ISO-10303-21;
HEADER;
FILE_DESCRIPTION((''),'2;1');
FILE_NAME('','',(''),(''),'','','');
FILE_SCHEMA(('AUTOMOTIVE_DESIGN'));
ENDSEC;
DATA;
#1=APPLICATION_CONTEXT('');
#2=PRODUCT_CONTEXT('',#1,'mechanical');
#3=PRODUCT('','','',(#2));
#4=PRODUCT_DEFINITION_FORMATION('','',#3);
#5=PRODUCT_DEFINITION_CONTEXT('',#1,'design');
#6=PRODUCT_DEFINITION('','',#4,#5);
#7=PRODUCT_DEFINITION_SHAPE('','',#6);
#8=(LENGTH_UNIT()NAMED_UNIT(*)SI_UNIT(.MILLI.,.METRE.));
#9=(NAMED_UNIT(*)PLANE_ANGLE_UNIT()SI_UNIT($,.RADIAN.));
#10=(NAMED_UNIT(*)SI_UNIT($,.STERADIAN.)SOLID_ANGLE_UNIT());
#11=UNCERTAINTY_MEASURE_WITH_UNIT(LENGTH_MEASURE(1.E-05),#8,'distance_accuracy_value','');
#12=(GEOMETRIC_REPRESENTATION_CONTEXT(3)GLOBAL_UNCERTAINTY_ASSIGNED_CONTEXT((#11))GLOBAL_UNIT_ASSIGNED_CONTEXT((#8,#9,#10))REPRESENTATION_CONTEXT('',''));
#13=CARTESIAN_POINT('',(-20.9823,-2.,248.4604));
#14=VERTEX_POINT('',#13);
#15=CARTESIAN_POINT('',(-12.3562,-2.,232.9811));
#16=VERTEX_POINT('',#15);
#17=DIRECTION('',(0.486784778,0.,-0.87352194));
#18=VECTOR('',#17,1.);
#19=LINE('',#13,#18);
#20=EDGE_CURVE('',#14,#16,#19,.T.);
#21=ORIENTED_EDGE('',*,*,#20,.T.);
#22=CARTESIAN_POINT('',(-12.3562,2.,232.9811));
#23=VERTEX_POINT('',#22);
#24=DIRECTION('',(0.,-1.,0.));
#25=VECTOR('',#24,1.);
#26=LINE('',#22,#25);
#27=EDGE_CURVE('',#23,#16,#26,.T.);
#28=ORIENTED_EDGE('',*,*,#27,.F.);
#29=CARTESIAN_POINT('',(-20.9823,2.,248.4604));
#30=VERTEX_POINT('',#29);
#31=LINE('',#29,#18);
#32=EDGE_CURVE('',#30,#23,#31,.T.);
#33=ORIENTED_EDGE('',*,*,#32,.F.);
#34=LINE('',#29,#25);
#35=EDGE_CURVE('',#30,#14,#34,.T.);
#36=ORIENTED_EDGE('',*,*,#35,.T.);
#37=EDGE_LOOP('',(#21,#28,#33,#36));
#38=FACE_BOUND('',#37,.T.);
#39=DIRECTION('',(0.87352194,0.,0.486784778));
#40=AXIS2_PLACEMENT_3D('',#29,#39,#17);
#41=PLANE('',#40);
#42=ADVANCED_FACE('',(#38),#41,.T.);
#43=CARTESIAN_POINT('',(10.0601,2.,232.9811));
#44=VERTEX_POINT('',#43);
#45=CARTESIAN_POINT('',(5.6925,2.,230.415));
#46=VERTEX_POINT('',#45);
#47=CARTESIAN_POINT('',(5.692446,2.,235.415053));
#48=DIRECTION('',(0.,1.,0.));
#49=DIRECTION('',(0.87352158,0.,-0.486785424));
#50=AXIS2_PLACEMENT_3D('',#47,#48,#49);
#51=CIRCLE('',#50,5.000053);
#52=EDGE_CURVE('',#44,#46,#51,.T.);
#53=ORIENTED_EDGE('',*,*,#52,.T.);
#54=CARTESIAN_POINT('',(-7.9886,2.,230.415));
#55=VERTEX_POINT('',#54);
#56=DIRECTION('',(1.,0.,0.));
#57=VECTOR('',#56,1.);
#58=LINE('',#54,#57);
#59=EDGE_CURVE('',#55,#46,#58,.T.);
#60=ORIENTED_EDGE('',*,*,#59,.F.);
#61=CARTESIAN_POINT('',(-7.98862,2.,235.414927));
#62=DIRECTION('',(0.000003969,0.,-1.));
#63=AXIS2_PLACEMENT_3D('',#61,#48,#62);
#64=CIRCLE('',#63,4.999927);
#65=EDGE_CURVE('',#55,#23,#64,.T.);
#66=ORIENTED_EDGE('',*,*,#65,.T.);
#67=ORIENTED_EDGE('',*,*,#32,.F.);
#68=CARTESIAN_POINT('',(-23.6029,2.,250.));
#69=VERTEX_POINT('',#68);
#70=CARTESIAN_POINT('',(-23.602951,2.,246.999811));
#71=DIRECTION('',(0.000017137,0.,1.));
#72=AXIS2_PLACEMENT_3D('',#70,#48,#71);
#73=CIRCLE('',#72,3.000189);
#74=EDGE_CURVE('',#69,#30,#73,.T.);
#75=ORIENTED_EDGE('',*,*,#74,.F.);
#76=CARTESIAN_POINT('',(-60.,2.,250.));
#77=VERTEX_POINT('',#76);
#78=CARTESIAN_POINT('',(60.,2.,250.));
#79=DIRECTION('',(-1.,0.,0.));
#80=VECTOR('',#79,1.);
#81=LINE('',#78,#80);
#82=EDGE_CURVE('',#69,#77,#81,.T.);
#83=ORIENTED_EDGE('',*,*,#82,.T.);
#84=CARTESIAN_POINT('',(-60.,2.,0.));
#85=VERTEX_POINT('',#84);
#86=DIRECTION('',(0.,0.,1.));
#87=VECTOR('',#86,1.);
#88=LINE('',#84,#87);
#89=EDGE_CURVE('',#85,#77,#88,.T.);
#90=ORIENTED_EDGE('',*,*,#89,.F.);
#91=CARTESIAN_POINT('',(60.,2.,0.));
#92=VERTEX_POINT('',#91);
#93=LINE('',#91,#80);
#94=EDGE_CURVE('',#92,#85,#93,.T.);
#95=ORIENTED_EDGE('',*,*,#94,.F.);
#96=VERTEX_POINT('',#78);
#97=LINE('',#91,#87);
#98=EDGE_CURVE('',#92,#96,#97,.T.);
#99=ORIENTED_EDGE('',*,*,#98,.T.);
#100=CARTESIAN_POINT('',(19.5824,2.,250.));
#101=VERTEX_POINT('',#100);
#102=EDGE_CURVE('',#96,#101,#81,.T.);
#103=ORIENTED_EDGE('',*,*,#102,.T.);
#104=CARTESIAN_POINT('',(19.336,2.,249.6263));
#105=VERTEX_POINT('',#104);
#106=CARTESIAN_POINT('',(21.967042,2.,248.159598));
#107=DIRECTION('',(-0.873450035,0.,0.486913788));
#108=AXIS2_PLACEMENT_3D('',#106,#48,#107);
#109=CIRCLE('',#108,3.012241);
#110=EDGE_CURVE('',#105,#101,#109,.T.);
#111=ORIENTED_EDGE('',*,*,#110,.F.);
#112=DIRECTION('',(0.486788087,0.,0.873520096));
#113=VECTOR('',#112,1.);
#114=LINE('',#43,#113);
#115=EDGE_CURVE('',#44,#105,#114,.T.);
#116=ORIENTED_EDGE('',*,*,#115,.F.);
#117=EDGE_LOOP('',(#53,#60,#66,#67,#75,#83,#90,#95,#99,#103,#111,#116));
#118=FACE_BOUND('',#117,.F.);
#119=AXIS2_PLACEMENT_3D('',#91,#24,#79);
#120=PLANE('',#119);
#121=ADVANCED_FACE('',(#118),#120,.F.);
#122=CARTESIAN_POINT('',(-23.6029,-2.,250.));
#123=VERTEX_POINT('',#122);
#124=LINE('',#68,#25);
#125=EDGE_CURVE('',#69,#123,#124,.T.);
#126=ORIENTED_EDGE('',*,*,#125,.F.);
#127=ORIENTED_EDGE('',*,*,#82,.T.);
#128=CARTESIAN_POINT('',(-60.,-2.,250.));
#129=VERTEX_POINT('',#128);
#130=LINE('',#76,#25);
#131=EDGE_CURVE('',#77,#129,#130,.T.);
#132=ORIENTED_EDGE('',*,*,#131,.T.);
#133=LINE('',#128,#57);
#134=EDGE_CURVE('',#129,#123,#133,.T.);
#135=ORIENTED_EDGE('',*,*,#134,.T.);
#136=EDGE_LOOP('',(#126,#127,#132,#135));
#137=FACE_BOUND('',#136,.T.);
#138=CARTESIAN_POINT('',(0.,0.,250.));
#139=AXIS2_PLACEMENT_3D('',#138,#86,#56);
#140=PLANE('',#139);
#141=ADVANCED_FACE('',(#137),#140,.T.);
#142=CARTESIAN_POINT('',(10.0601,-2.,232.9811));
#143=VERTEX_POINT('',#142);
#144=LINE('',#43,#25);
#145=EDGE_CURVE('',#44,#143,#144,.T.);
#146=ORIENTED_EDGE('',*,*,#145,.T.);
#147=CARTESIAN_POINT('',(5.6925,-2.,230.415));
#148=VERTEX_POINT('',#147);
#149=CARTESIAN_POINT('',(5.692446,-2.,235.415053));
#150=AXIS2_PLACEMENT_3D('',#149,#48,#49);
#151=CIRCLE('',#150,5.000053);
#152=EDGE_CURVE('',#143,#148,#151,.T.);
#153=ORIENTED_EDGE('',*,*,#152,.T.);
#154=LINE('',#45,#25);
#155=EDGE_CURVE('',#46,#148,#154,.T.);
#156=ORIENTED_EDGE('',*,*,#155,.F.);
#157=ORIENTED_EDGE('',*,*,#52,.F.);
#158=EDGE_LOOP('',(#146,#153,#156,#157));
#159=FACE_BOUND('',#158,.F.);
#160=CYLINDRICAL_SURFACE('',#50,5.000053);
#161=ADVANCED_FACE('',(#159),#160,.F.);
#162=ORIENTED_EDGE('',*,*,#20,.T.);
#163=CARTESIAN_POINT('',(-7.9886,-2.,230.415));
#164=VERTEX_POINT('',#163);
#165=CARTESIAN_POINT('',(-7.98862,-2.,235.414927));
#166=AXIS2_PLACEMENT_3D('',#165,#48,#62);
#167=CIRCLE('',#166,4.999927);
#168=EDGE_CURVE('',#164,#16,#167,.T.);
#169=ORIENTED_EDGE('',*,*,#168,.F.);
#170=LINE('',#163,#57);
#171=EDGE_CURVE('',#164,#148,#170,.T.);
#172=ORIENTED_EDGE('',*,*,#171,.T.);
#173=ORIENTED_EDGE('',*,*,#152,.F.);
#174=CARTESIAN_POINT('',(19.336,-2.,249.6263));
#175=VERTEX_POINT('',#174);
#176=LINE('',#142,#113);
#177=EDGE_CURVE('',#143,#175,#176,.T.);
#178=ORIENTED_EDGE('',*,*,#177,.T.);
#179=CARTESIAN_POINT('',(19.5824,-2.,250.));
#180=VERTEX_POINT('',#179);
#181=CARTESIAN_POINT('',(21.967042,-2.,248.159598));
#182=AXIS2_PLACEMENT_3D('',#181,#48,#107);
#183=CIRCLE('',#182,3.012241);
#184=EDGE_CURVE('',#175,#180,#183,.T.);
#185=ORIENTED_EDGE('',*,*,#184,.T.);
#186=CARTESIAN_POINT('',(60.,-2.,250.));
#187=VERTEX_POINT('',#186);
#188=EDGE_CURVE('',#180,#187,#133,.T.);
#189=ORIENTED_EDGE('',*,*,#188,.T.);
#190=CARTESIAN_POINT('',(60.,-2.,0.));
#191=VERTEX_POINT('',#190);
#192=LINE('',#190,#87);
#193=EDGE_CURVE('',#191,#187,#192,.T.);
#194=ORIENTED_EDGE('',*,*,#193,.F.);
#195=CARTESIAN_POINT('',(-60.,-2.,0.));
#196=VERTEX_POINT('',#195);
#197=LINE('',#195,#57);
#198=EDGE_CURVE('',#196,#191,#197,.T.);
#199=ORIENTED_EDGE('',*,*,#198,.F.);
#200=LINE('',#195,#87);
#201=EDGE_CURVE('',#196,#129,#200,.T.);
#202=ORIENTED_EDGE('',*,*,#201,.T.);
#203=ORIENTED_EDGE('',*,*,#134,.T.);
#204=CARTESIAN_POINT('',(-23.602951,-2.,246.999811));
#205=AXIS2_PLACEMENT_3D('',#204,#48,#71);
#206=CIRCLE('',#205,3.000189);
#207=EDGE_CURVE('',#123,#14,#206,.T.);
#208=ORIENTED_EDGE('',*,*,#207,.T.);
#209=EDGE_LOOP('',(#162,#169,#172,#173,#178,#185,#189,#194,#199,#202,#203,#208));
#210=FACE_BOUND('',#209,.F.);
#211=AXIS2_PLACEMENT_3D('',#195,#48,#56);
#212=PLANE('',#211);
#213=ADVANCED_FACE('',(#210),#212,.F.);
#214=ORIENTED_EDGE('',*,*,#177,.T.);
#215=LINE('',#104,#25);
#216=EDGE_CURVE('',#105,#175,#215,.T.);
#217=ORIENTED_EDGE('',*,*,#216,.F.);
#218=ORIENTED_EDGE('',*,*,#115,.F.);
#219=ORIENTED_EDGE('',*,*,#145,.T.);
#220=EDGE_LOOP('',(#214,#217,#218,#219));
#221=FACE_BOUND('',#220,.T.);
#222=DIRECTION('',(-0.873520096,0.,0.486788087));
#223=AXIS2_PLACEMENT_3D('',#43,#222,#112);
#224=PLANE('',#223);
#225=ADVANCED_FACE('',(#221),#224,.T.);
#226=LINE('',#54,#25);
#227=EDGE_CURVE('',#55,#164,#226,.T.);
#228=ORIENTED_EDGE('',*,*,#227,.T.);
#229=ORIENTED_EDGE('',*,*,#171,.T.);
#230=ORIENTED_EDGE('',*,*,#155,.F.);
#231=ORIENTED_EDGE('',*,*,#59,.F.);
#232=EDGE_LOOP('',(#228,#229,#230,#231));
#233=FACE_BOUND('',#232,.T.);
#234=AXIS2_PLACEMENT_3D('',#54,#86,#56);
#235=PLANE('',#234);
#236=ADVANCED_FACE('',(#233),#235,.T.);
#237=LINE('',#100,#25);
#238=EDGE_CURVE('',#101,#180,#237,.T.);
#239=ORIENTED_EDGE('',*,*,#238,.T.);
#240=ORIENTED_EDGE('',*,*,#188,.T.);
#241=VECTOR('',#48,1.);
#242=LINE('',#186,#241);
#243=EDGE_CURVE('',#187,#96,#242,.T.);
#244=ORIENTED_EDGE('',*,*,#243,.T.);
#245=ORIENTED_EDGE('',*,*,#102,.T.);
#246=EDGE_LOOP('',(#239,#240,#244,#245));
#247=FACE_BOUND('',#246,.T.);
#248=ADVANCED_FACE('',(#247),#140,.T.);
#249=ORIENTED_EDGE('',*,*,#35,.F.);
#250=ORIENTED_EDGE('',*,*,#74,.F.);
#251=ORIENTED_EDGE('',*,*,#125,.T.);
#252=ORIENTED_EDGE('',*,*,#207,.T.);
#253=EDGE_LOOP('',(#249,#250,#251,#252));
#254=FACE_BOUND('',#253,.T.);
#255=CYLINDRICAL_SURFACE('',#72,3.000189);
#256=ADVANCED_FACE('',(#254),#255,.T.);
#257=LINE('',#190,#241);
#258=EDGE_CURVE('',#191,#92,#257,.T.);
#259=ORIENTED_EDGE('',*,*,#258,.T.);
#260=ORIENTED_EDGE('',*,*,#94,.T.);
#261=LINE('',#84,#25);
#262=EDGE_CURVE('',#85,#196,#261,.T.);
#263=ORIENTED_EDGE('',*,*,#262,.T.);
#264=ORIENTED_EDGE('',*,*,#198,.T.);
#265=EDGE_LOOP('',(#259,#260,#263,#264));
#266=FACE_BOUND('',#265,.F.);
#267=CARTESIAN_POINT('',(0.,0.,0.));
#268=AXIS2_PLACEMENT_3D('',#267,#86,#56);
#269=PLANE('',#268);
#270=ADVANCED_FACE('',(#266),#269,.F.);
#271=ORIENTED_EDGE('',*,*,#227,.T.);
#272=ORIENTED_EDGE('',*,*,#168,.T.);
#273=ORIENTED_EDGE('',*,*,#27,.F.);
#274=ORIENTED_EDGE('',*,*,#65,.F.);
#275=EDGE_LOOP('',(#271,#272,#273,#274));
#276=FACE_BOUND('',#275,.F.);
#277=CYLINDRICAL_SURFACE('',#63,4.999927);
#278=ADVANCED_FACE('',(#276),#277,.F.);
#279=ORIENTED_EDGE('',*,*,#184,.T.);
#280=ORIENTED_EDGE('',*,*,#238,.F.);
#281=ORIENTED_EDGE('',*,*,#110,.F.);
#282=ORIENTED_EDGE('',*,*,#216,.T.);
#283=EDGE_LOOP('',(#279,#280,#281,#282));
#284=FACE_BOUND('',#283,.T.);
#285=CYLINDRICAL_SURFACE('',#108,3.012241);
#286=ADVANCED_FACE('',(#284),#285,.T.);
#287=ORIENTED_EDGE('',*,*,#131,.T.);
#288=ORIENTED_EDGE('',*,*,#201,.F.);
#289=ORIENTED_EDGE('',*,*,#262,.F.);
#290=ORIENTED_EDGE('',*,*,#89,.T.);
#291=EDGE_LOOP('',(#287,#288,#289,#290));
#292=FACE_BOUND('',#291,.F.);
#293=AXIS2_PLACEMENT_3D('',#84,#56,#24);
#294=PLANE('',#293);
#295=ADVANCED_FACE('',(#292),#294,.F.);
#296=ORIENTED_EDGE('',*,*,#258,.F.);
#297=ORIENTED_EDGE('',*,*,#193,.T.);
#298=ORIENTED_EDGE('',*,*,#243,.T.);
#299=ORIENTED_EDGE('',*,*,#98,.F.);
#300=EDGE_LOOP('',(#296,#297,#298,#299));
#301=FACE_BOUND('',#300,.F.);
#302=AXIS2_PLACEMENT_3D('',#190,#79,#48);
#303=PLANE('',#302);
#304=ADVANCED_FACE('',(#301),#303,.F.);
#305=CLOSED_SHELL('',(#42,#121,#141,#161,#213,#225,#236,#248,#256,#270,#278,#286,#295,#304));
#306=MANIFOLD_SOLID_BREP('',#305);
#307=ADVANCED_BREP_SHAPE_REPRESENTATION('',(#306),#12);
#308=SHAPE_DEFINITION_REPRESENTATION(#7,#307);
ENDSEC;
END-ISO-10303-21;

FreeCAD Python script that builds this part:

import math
import FreeCAD as App
import Part
import Sketcher
from FreeCAD import Vector
Q = App.Units.Quantity


def add_polygon(sketch, points):
    """Adds a closed chain of lines whose ends are joined by coincident constraints."""
    first, n = sketch.GeometryCount, len(points)
    for a, b in zip(points, points[1:] + points[:1]):
        sketch.addGeometry(Part.LineSegment(App.Vector(*a, 0), App.Vector(*b, 0)), False)
    for i in range(n):
        sketch.addConstraint(Sketcher.Constraint("Coincident", first + i, 2, first + (i + 1) % n, 1))

doc = App.newDocument("Part")
params = doc.addObject("Spreadsheet::Sheet", "Params")
for row, (alias, value) in enumerate([
    ("sketch1_width", "120 mm"),
    ("sketch1_height", "4 mm"),
    ("pad1_length", "250 mm"),
    ("sketch2_radius", "3 mm"),
    ("sketch2_radius2", "5 mm"),
    ("pocket1_length", "4 mm"),
], start=1):
    params.set(f"A{row}", alias)
    params.set(f"B{row}", "=" + value)
    params.setAlias(f"B{row}", alias)

body = doc.addObject("PartDesign::Body", "Body")

# Sketch on XY plane
sketch1 = body.newObject("Sketcher::SketchObject", "Sketch")
sketch1.AttachmentSupport = (doc.getObject("XY_Plane"), [""])
sketch1.MapMode = "FlatFace"
add_polygon(sketch1, [(60, -2), (60, 2), (-60, 2), (-60, -2)])  # lines 0-3
sketch1.addConstraint([
    Sketcher.Constraint("Vertical", 0),
    Sketcher.Constraint("Horizontal", 1),
    Sketcher.Constraint("Vertical", 2),
    Sketcher.Constraint("Horizontal", 3),
    Sketcher.Constraint("Symmetric", 0, 2, 2, 2, -1, 1),
    Sketcher.Constraint("DistanceX", 1, 2, 1, 1, 120.0),
    Sketcher.Constraint("DistanceY", 0, 1, 0, 2, 4.0),
])
sketch1.setExpression("Constraints[9]", "Params.sketch1_width")
sketch1.setExpression("Constraints[10]", "Params.sketch1_height")
pad1 = body.newObject("PartDesign::Pad", "Pad")
pad1.Profile = sketch1
pad1.setExpression("Length", "Params.pad1_length")

# Sketch on XZ plane
sketch2 = body.newObject("Sketcher::SketchObject", "Sketch001")
sketch2.AttachmentSupport = (doc.getObject("XZ_Plane"), [""])
sketch2.MapMode = "FlatFace"
sketch2.AttachmentOffset = App.Placement(Vector(0, 0, -2), App.Rotation())
sketch2.addGeometry([
    Part.LineSegment(Vector(-12.36, 232.98, 0), Vector(-20.98, 248.46, 0)),  # 0
    Part.ArcOfCircle(Part.Circle(Vector(-23.6, 247, 0), Vector(0, 0, 1), 3), math.radians(29), math.radians(90)),  # 1
    Part.LineSegment(Vector(-23.6, 250, 0), Vector(19.58, 250, 0)),  # 2
    Part.ArcOfCircle(Part.Circle(Vector(21.97, 248.16, 0), Vector(0, 0, 1), 3.01), math.radians(142.34), math.radians(150.86)),  # 3
    Part.LineSegment(Vector(19.34, 249.63, 0), Vector(10.06, 232.98, 0)),  # 4
    Part.ArcOfCircle(Part.Circle(Vector(5.69, 235.41, 0), Vector(0, 0, 1), 5), math.radians(-90), math.radians(-29)),  # 5
    Part.LineSegment(Vector(5.69, 230.41, 0), Vector(-7.99, 230.41, 0)),  # 6
    Part.ArcOfCircle(Part.Circle(Vector(-7.99, 235.41, 0), Vector(0, 0, 1), 5), math.radians(-151), math.radians(-90)),  # 7
], False)
sketch2.addConstraint([
    Sketcher.Constraint("Tangent", 0, 2, 1, 1),
    Sketcher.Constraint("Tangent", 1, 2, 2, 1),
    Sketcher.Constraint("Coincident", 2, 2, 3, 1),
    Sketcher.Constraint("Tangent", 3, 2, 4, 1),
    Sketcher.Constraint("Tangent", 4, 2, 5, 2),
    Sketcher.Constraint("Tangent", 5, 1, 6, 1),
    Sketcher.Constraint("Tangent", 6, 2, 7, 2),
    Sketcher.Constraint("Tangent", 7, 1, 0, 1),
    Sketcher.Constraint("Horizontal", 2),
    Sketcher.Constraint("Horizontal", 6),
    Sketcher.Constraint("Equal", 5, 7),
    Sketcher.Constraint("Horizontal", 4, 2, 7, 1),
    Sketcher.Constraint("Radius", 1, 3.0),
    Sketcher.Constraint("Radius", 5, 5.0),
    Sketcher.Constraint("DistanceY", -1, 1, 1, 3, 247.0),
    Sketcher.Constraint("DistanceY", 5, 1, 2, 2, 19.585),
    Sketcher.Constraint("Angle", 0, Q("119.1295 deg")),
    Sketcher.Constraint("Radius", 3, 3.0122),
    Sketcher.Constraint("DistanceX", 6, 2, 6, 1, 13.681),
    Sketcher.Constraint("DistanceX", -1, 1, 4, 2, 10.06),
    Sketcher.Constraint("DistanceX", 1, 3, 3, 3, 45.57),
])
sketch2.setExpression("Constraints[12]", "Params.sketch2_radius")
sketch2.setExpression("Constraints[13]", "Params.sketch2_radius2")
pocket1 = body.newObject("PartDesign::Pocket", "Pocket")
pocket1.Profile = sketch2
pocket1.setExpression("Length", "Params.pocket1_length")
pocket1.Reversed = True

doc.recompute()
